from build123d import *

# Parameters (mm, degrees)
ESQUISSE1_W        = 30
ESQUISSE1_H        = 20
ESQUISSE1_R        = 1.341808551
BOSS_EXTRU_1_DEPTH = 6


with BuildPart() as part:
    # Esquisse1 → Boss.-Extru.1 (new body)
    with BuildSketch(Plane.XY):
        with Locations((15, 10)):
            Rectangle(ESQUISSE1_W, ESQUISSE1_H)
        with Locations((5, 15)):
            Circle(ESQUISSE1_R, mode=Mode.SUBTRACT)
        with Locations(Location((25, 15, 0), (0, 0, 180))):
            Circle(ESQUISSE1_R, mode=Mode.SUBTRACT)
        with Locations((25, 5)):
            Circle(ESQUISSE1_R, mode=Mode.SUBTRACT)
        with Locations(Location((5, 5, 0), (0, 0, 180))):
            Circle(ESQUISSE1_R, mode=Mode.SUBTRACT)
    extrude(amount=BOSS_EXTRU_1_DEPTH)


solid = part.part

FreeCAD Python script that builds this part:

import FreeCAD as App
import Part
import Sketcher

V = App.Vector


def add_polygon(sketch, points):
    """Adds a closed chain of lines whose ends are joined by coincident constraints."""
    first, n = sketch.GeometryCount, len(points)
    for a, b in zip(points, points[1:] + points[:1]):
        sketch.addGeometry(Part.LineSegment(App.Vector(*a, 0), App.Vector(*b, 0)), False)
    for i in range(n):
        sketch.addConstraint(Sketcher.Constraint("Coincident", first + i, 2, first + (i + 1) % n, 1))

doc = App.newDocument("Part")
body = doc.addObject("PartDesign::Body", "Body")

# Sketch on XY plane
sketch1 = body.newObject("Sketcher::SketchObject", "Sketch")
sketch1.AttachmentSupport = (doc.getObject("XY_Plane"), [""])
sketch1.MapMode = "FlatFace"
add_polygon(sketch1, [(0, 20), (0, 0), (30, 0), (30, 20)])  # lines 0-3
sketch1.addGeometry(Part.Circle(V(5, 5, 0), V(0, 0, 1), 1.3), False)  # 4
sketch1.addGeometry(Part.Circle(V(25, 5, 0), V(0, 0, 1), 1.3), False)  # 5
sketch1.addGeometry(Part.Circle(V(5, 15, 0), V(0, 0, 1), 1.3), False)  # 6
sketch1.addGeometry(Part.Circle(V(25, 15, 0), V(0, 0, 1), 1.3), False)  # 7
sketch1.addConstraint(Sketcher.Constraint("Vertical", 0))
sketch1.addConstraint(Sketcher.Constraint("Horizontal", 1))
sketch1.addConstraint(Sketcher.Constraint("Vertical", 2))
sketch1.addConstraint(Sketcher.Constraint("Horizontal", 3))
sketch1.addConstraint(Sketcher.Constraint("Coincident", 0, 2, -1, 1))
sketch1.addConstraint(Sketcher.Constraint("Equal", 4, 5))
sketch1.addConstraint(Sketcher.Constraint("Equal", 5, 6))
sketch1.addConstraint(Sketcher.Constraint("Equal", 6, 7))
sketch1.addConstraint(Sketcher.Constraint("Horizontal", 4, 3, 5, 3))
sketch1.addConstraint(Sketcher.Constraint("Horizontal", 6, 3, 7, 3))
sketch1.addConstraint(Sketcher.Constraint("Vertical", 4, 3, 6, 3))
sketch1.addConstraint(Sketcher.Constraint("Vertical", 5, 3, 7, 3))
sketch1.addConstraint(Sketcher.Constraint("DistanceX", 1, 1, 1, 2, 30.0))
sketch1.addConstraint(Sketcher.Constraint("DistanceY", 0, 2, 0, 1, 20.0))
sketch1.addConstraint(Sketcher.Constraint("DistanceX", -1, 1, 4, 3, 5.0))
sketch1.addConstraint(Sketcher.Constraint("DistanceY", -1, 1, 4, 3, 5.0))
sketch1.addConstraint(Sketcher.Constraint("DistanceX", -1, 1, 5, 3, 25.0))
sketch1.addConstraint(Sketcher.Constraint("DistanceY", -1, 1, 6, 3, 15.0))
sketch1.addConstraint(Sketcher.Constraint("Diameter", 4, 2.683617))
pad1 = body.newObject("PartDesign::Pad", "Pad")
pad1.Profile = sketch1
pad1.Length = 6

doc.recompute()
